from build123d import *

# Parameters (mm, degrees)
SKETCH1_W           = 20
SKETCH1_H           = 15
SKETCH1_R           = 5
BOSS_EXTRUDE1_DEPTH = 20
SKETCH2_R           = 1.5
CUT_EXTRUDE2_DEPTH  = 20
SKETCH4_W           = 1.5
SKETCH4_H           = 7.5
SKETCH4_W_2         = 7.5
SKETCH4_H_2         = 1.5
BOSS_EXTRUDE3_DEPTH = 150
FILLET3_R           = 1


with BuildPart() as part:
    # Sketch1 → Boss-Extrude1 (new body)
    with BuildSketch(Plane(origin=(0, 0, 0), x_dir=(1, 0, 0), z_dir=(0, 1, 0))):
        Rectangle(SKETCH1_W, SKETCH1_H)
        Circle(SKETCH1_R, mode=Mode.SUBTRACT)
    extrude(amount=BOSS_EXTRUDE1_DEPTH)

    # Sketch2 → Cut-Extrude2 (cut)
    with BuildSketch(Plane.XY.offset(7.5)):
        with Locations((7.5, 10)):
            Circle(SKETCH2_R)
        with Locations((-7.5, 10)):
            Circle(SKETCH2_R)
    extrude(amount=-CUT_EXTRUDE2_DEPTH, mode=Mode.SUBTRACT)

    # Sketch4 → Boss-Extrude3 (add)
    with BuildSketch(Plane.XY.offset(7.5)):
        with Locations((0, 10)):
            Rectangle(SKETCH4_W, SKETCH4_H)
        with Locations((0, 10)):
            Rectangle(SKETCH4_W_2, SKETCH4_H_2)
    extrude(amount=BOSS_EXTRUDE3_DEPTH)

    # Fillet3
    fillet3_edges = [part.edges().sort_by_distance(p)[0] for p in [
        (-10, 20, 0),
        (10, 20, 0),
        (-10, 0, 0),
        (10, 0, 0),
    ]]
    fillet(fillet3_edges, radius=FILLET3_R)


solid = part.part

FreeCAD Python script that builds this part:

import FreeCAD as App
import Part
import Sketcher
from FreeCAD import Vector
Q = App.Units.Quantity


def edges_at(feature, points):
    """Names of the edges that pass closest to the given points."""
    edges = feature.Shape.Edges
    near = lambda p: min(range(len(edges)), key=lambda i: edges[i].distToShape(Part.Vertex(*p))[0])
    return sorted({f"Edge{near(p) + 1}" for p in points})


def add_polygon(sketch, points):
    """Adds a closed chain of lines whose ends are joined by coincident constraints."""
    first, n = sketch.GeometryCount, len(points)
    for a, b in zip(points, points[1:] + points[:1]):
        sketch.addGeometry(Part.LineSegment(App.Vector(*a, 0), App.Vector(*b, 0)), False)
    for i in range(n):
        sketch.addConstraint(Sketcher.Constraint("Coincident", first + i, 2, first + (i + 1) % n, 1))

doc = App.newDocument("Part")
body = doc.addObject("PartDesign::Body", "Body")

# Sketch on XZ plane
sketch1 = body.newObject("Sketcher::SketchObject", "Sketch")
sketch1.AttachmentSupport = (doc.getObject("XZ_Plane"), [""])
sketch1.MapMode = "FlatFace"
add_polygon(sketch1, [(-10, -7.5), (-10, 7.5), (10, 7.5), (10, -7.5)])  # lines 0-3
sketch1.addGeometry(Part.Circle(Vector(0, 0, 0), Vector(0, 0, 1), 5), False)  # 4
sketch1.addConstraint(Sketcher.Constraint("Vertical", 0))
sketch1.addConstraint(Sketcher.Constraint("Horizontal", 1))
sketch1.addConstraint(Sketcher.Constraint("Vertical", 2))
sketch1.addConstraint(Sketcher.Constraint("Horizontal", 3))
sketch1.addConstraint(Sketcher.Constraint("Coincident", 4, 3, -1, 1))
sketch1.addConstraint(Sketcher.Constraint("Symmetric", 0, 2, 2, 2, -1, 1))
sketch1.addConstraint(Sketcher.Constraint("Diameter", 4, Q("10 mm")))
sketch1.addConstraint(Sketcher.Constraint("DistanceX", 1, 1, 1, 2, Q("20 mm")))
sketch1.addConstraint(Sketcher.Constraint("DistanceY", 0, 1, 0, 2, Q("15 mm")))
pad1 = body.newObject("PartDesign::Pad", "Pad")
pad1.Profile = sketch1
pad1.Length = 20
pad1.Reversed = True

# Sketch on XY plane
sketch2 = body.newObject("Sketcher::SketchObject", "Sketch001")
sketch2.AttachmentSupport = (doc.getObject("XY_Plane"), [""])
sketch2.MapMode = "FlatFace"
sketch2.AttachmentOffset = App.Placement(Vector(0, 0, 7.5), App.Rotation())
sketch2.addGeometry(Part.Circle(Vector(7.5, 10, 0), Vector(0, 0, 1), 1.5), False)
sketch2.addGeometry(Part.Circle(Vector(-7.5, 10, 0), Vector(0, 0, 1), 1.5), False)
sketch2.addConstraint(Sketcher.Constraint("Equal", 0, 1))
sketch2.addConstraint(Sketcher.Constraint("Symmetric", 0, 3, 1, 3, -2))
sketch2.addConstraint(Sketcher.Constraint("Diameter", 0, Q("3 mm")))
sketch2.addConstraint(Sketcher.Constraint("DistanceY", -1, 1, 0, 3, Q("10 mm")))
sketch2.addConstraint(Sketcher.Constraint("DistanceX", 1, 3, 0, 3, Q("15 mm")))
pocket1 = body.newObject("PartDesign::Pocket", "Pocket")
pocket1.Profile = sketch2
pocket1.Length = 20

# Sketch on XY plane
sketch3 = body.newObject("Sketcher::SketchObject", "Sketch002")
sketch3.AttachmentSupport = (doc.getObject("XY_Plane"), [""])
sketch3.MapMode = "FlatFace"
sketch3.AttachmentOffset = App.Placement(Vector(0, 0, 7.5), App.Rotation())
add_polygon(sketch3, [(-0.75, 9.25), (-0.75, 6.25), (0.75, 6.25), (0.75, 9.25), (3.75, 9.25), (3.75, 10.75), (0.75, 10.75), (0.75, 13.75), (-0.75, 13.75), (-0.75, 10.75), (-3.75, 10.75), (-3.75, 9.25)])  # lines 0-11
sketch3.addConstraint(Sketcher.Constraint("Vertical", 0))
sketch3.addConstraint(Sketcher.Constraint("Horizontal", 1))
sketch3.addConstraint(Sketcher.Constraint("Vertical", 2))
sketch3.addConstraint(Sketcher.Constraint("Horizontal", 3))
sketch3.addConstraint(Sketcher.Constraint("Vertical", 4))
sketch3.addConstraint(Sketcher.Constraint("Horizontal", 5))
sketch3.addConstraint(Sketcher.Constraint("Vertical", 6))
sketch3.addConstraint(Sketcher.Constraint("Horizontal", 7))
sketch3.addConstraint(Sketcher.Constraint("Vertical", 8))
sketch3.addConstraint(Sketcher.Constraint("Horizontal", 9))
sketch3.addConstraint(Sketcher.Constraint("Vertical", 10))
sketch3.addConstraint(Sketcher.Constraint("Horizontal", 11))
sketch3.addConstraint(Sketcher.Constraint("Symmetric", 5, 2, 8, 2, -2))
sketch3.addConstraint(Sketcher.Constraint("Symmetric", 3, 2, 10, 2, -2))
sketch3.addConstraint(Sketcher.Constraint("Vertical", 2, 2, 5, 2))
sketch3.addConstraint(Sketcher.Constraint("Vertical", 0, 2, 7, 2))
sketch3.addConstraint(Sketcher.Constraint("Equal", 11, 0))
sketch3.addConstraint(Sketcher.Constraint("Equal", 7, 4))
sketch3.addConstraint(Sketcher.Constraint("Equal", 2, 6))
sketch3.addConstraint(Sketcher.Constraint("DistanceX", 3, 1, 3, 2, Q("3 mm")))
sketch3.addConstraint(Sketcher.Constraint("DistanceX", 1, 1, 1, 2, Q("1.5 mm")))
sketch3.addConstraint(Sketcher.Constraint("DistanceY", -1, 1, 0, 2, Q("6.25 mm")))
pad2 = body.newObject("PartDesign::Pad", "Pad001")
pad2.Profile = sketch3
pad2.Length = 150
doc.recompute()

fillet = body.newObject("PartDesign::Fillet", "Fillet")
fillet.Base = (pad2, edges_at(pad2, [
    (-10, 20, 0),
    (10, 20, 0),
    (-10, 0, 0),
    (10, 0, 0),
]))
fillet.Radius = 1

doc.recompute()
